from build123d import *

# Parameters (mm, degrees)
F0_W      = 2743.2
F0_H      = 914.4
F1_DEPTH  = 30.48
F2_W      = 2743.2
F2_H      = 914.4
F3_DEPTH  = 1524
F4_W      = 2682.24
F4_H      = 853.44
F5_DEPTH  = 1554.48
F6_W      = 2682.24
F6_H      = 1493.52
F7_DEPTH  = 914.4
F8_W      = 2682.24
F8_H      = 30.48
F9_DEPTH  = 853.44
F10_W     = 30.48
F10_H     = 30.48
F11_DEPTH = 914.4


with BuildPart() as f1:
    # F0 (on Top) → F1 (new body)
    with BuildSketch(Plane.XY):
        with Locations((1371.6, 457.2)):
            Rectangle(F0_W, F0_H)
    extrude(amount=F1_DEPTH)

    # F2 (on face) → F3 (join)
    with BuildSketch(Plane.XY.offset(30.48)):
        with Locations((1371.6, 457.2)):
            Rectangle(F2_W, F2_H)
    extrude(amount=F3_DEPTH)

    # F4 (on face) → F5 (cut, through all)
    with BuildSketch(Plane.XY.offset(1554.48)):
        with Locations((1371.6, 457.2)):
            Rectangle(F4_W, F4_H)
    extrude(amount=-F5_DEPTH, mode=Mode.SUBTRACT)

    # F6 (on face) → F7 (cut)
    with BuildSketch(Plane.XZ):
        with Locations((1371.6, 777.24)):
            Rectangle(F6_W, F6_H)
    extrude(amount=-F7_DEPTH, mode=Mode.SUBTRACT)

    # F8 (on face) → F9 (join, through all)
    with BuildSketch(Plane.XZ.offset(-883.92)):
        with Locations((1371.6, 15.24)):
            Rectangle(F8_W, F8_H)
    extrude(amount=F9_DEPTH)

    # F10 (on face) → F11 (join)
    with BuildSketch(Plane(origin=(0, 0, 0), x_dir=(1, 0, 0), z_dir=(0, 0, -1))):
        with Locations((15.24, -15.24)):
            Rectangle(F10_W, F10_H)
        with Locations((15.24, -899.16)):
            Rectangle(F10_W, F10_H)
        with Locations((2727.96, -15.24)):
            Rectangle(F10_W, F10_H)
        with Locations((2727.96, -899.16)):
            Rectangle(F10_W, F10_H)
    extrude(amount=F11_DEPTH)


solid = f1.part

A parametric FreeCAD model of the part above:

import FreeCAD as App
import Part
import Sketcher

V = App.Vector
Q = App.Units.Quantity


def add_polygon(sketch, points):
    """Adds a closed chain of lines whose ends are joined by coincident constraints."""
    first, n = sketch.GeometryCount, len(points)
    for a, b in zip(points, points[1:] + points[:1]):
        sketch.addGeometry(Part.LineSegment(App.Vector(*a, 0), App.Vector(*b, 0)), False)
    for i in range(n):
        sketch.addConstraint(Sketcher.Constraint("Coincident", first + i, 2, first + (i + 1) % n, 1))

doc = App.newDocument("Part")
body = doc.addObject("PartDesign::Body", "Body")

sketch1 = doc.addObject("Sketcher::SketchObject", "Sketch")
body.addObject(sketch1)
sketch1.AttachmentSupport = (doc.XY_Plane, [""])
sketch1.MapMode = "FlatFace"
add_polygon(sketch1, [(0, 914), (0, 0), (2743, 0), (2743, 914)])
sketch1.addConstraint([
    Sketcher.Constraint("Vertical", 0),
    Sketcher.Constraint("Horizontal", 1),
    Sketcher.Constraint("Vertical", 2),
    Sketcher.Constraint("Horizontal", 3),
    Sketcher.Constraint("Coincident", 0, 2, -1, 1),
    Sketcher.Constraint("DistanceX", 1, 1, 1, 2, Q("108 in")),
    Sketcher.Constraint("DistanceY", 0, 2, 0, 1, Q("36 in")),
])
pad1 = doc.addObject("PartDesign::Pad", "Pad")
body.addObject(pad1)
pad1.Profile = sketch1
pad1.Length = Q("1.2 in")

sketch2 = doc.addObject("Sketcher::SketchObject", "Sketch001")
body.addObject(sketch2)
sketch2.AttachmentSupport = (doc.XY_Plane, [""])
sketch2.MapMode = "FlatFace"
sketch2.AttachmentOffset = App.Placement(V(0, 0, 1.2 * 25.4), App.Rotation())
add_polygon(sketch2, [(0, 914), (0, 0), (2743, 0), (2743, 914)])
sketch2.addConstraint([
    Sketcher.Constraint("Vertical", 0),
    Sketcher.Constraint("Horizontal", 1),
    Sketcher.Constraint("Vertical", 2),
    Sketcher.Constraint("Horizontal", 3),
    Sketcher.Constraint("Coincident", 0, 2, -1, 1),
    Sketcher.Constraint("DistanceX", 1, 1, 1, 2, Q("108 in")),
    Sketcher.Constraint("DistanceY", 0, 2, 0, 1, Q("36 in")),
])
pad2 = doc.addObject("PartDesign::Pad", "Pad001")
body.addObject(pad2)
pad2.Profile = sketch2
pad2.Length = Q("60 in")

sketch3 = doc.addObject("Sketcher::SketchObject", "Sketch002")
body.addObject(sketch3)
sketch3.AttachmentSupport = (doc.XY_Plane, [""])
sketch3.MapMode = "FlatFace"
sketch3.AttachmentOffset = App.Placement(V(0, 0, 61.2 * 25.4), App.Rotation())
add_polygon(sketch3, [(30, 884), (30, 30), (2713, 30), (2713, 884)])
sketch3.addConstraint([
    Sketcher.Constraint("Vertical", 0),
    Sketcher.Constraint("Horizontal", 1),
    Sketcher.Constraint("Vertical", 2),
    Sketcher.Constraint("Horizontal", 3),
    Sketcher.Constraint("DistanceX", 1, 1, 1, 2, Q("105.6 in")),
    Sketcher.Constraint("DistanceY", 0, 2, 0, 1, Q("33.6 in")),
    Sketcher.Constraint("DistanceX", -1, 1, 0, 2, Q("1.2 in")),
    Sketcher.Constraint("DistanceY", -1, 1, 0, 2, Q("1.2 in")),
])
pocket1 = doc.addObject("PartDesign::Pocket", "Pocket")
body.addObject(pocket1)
pocket1.Profile = sketch3
pocket1.Type = "ThroughAll"

sketch4 = doc.addObject("Sketcher::SketchObject", "Sketch003")
body.addObject(sketch4)
sketch4.AttachmentSupport = (doc.XZ_Plane, [""])
sketch4.MapMode = "FlatFace"
add_polygon(sketch4, [(30, 1524), (30, 30), (2713, 30), (2713, 1524)])
sketch4.addConstraint([
    Sketcher.Constraint("Vertical", 0),
    Sketcher.Constraint("Horizontal", 1),
    Sketcher.Constraint("Vertical", 2),
    Sketcher.Constraint("Horizontal", 3),
    Sketcher.Constraint("DistanceX", 1, 1, 1, 2, Q("105.6 in")),
    Sketcher.Constraint("DistanceY", 0, 2, 0, 1, Q("58.8 in")),
    Sketcher.Constraint("DistanceY", -1, 1, 2, 2, Q("60 in")),
    Sketcher.Constraint("DistanceX", -1, 1, 0, 2, Q("1.2 in")),
])
pocket2 = doc.addObject("PartDesign::Pocket", "Pocket001")
body.addObject(pocket2)
pocket2.Profile = sketch4
pocket2.Length = Q("36 in")

sketch5 = doc.addObject("Sketcher::SketchObject", "Sketch004")
body.addObject(sketch5)
sketch5.AttachmentSupport = (doc.XZ_Plane, [""])
sketch5.MapMode = "FlatFace"
sketch5.AttachmentOffset = App.Placement(V(0, 0, -34.8 * 25.4), App.Rotation())
add_polygon(sketch5, [(30, 30), (30, 0), (2713, 0), (2713, 30)])
sketch5.addConstraint([
    Sketcher.Constraint("Vertical", 0),
    Sketcher.Constraint("Horizontal", 1),
    Sketcher.Constraint("Vertical", 2),
    Sketcher.Constraint("Horizontal", 3),
    Sketcher.Constraint("PointOnObject", 0, 2, -1),
    Sketcher.Constraint("DistanceX", 1, 1, 1, 2, Q("105.6 in")),
    Sketcher.Constraint("DistanceY", 0, 2, 0, 1, Q("1.2 in")),
    Sketcher.Constraint("DistanceX", -1, 1, 0, 2, Q("1.2 in")),
])
pad3 = doc.addObject("PartDesign::Pad", "Pad002")
body.addObject(pad3)
pad3.Profile = sketch5
pad3.Type = "UpToLast"

sketch6 = doc.addObject("Sketcher::SketchObject", "Sketch005")
body.addObject(sketch6)
sketch6.AttachmentSupport = (doc.XY_Plane, [""])
sketch6.MapMode = "FlatFace"
add_polygon(sketch6, [(0, 0), (0, 30), (30, 30), (30, 0)])
add_polygon(sketch6, [(0, 884), (0, 914), (30, 914), (30, 884)])
add_polygon(sketch6, [(2713, 0), (2713, 30), (2743, 30), (2743, 0)])
add_polygon(sketch6, [(2713, 884), (2713, 914), (2743, 914), (2743, 884)])
sketch6.addConstraint([
    Sketcher.Constraint("Vertical", 0),
    Sketcher.Constraint("Horizontal", 1),
    Sketcher.Constraint("Vertical", 2),
    Sketcher.Constraint("Horizontal", 3),
    Sketcher.Constraint("Vertical", 4),
    Sketcher.Constraint("Horizontal", 5),
    Sketcher.Constraint("Vertical", 6),
    Sketcher.Constraint("Horizontal", 7),
    Sketcher.Constraint("Vertical", 8),
    Sketcher.Constraint("Horizontal", 9),
    Sketcher.Constraint("Vertical", 10),
    Sketcher.Constraint("Horizontal", 11),
    Sketcher.Constraint("Vertical", 12),
    Sketcher.Constraint("Horizontal", 13),
    Sketcher.Constraint("Vertical", 14),
    Sketcher.Constraint("Horizontal", 15),
    Sketcher.Constraint("Coincident", 3, 2, -1, 1),
    Sketcher.Constraint("PointOnObject", 4, 2, -2),
    Sketcher.Constraint("PointOnObject", 10, 2, -1),
    Sketcher.Constraint("Horizontal", 1, 2, 8, 2),
    Sketcher.Constraint("Horizontal", 5, 2, 12, 2),
    Sketcher.Constraint("Horizontal", 7, 2, 14, 2),
    Sketcher.Constraint("Vertical", 2, 2, 5, 2),
    Sketcher.Constraint("Vertical", 11, 2, 12, 2),
    Sketcher.Constraint("Vertical", 10, 2, 13, 2),
    Sketcher.Constraint("Equal", 7, 9),
    Sketcher.Constraint("Equal", 15, 0),
    Sketcher.Constraint("Equal", 2, 4),
    Sketcher.Constraint("DistanceX", 1, 1, 1, 2, Q("1.2 in")),
    Sketcher.Constraint("DistanceY", -1, 1, 4, 2, Q("36 in")),
    Sketcher.Constraint("DistanceX", -1, 1, 9, 2, Q("108 in")),
])
pad4 = doc.addObject("PartDesign::Pad", "Pad003")
body.addObject(pad4)
pad4.Profile = sketch6
pad4.Length = Q("36 in")
pad4.Reversed = True

doc.recompute()
